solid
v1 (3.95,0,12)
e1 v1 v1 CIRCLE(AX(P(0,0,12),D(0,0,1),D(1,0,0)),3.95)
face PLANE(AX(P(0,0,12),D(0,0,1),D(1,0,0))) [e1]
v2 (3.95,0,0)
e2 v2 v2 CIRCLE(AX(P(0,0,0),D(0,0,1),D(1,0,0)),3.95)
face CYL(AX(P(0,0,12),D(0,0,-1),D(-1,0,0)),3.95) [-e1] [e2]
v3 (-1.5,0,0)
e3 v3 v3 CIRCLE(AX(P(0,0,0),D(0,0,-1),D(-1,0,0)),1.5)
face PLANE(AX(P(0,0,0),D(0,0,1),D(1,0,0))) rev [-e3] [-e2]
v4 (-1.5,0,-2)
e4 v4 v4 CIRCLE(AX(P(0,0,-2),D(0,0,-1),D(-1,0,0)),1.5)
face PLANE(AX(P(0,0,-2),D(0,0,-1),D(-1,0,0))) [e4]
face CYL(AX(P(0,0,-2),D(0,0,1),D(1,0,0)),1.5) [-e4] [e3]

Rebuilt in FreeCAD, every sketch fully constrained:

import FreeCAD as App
import Part
import Sketcher

V = App.Vector

doc = App.newDocument("Part")
body = doc.addObject("PartDesign::Body", "Body")

sketch1 = body.newObject("Sketcher::SketchObject", "Sketch")
sketch1.AttachmentSupport = (doc.getObject("XY_Plane"), [""])
sketch1.MapMode = "FlatFace"
sketch1.addGeometry(Part.Circle(V(0, 0, 0), V(0, 0, 1), 4), False)
sketch1.addConstraint([
    Sketcher.Constraint("Coincident", 0, 3, -1, 1),
    Sketcher.Constraint("Diameter", 0, 7.9),
])
pad1 = body.newObject("PartDesign::Pad", "Pad")
pad1.Profile = sketch1
pad1.Length = 12

sketch2 = body.newObject("Sketcher::SketchObject", "Sketch001")
sketch2.AttachmentSupport = (doc.getObject("XY_Plane"), [""])
sketch2.MapMode = "FlatFace"
sketch2.addGeometry(Part.Circle(V(0, 0, 0), V(0, 0, 1), 1.5), False)
sketch2.addConstraint([
    Sketcher.Constraint("Coincident", 0, 3, -1, 1),
    Sketcher.Constraint("Diameter", 0, 3.0),
])
pad2 = body.newObject("PartDesign::Pad", "Pad001")
pad2.Profile = sketch2
pad2.Length = 2
pad2.Reversed = True

doc.recompute()
